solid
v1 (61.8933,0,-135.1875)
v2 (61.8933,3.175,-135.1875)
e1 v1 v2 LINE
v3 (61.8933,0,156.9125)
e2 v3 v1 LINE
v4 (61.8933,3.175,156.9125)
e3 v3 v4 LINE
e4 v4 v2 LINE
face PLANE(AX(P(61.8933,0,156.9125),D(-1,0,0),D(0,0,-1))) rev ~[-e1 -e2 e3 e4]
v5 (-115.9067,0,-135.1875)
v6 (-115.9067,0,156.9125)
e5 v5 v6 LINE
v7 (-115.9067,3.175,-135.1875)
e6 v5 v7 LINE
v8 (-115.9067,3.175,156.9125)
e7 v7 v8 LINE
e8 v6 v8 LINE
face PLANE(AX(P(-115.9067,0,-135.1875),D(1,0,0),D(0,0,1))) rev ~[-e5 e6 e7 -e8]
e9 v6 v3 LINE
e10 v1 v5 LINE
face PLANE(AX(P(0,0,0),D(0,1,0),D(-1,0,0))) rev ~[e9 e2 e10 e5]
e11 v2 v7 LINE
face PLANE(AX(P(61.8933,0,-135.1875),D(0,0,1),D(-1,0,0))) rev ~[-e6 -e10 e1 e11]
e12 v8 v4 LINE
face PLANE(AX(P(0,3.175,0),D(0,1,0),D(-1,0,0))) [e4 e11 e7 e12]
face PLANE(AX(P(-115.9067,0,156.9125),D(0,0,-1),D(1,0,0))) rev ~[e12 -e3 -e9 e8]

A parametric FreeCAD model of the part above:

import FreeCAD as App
import Part
import Sketcher
Q = App.Units.Quantity


def add_polygon(sketch, points):
    """Adds a closed chain of lines whose ends are joined by coincident constraints."""
    first, n = sketch.GeometryCount, len(points)
    for a, b in zip(points, points[1:] + points[:1]):
        sketch.addGeometry(Part.LineSegment(App.Vector(*a, 0), App.Vector(*b, 0)), False)
    for i in range(n):
        sketch.addConstraint(Sketcher.Constraint("Coincident", first + i, 2, first + (i + 1) % n, 1))

doc = App.newDocument("Part")
body = doc.addObject("PartDesign::Body", "Body")

sketch1 = body.newObject("Sketcher::SketchObject", "Sketch")
sketch1.AttachmentSupport = (doc.getObject("XZ_Plane"), [""])
sketch1.MapMode = "FlatFace"
add_polygon(sketch1, [(-116, -135), (-116, 157), (62, 157), (62, -135)])
sketch1.addConstraint(Sketcher.Constraint("Vertical", 0))
sketch1.addConstraint(Sketcher.Constraint("Horizontal", 1))
sketch1.addConstraint(Sketcher.Constraint("Vertical", 2))
sketch1.addConstraint(Sketcher.Constraint("Horizontal", 3))
sketch1.addConstraint(Sketcher.Constraint("DistanceX", 1, 1, 1, 2, Q("7 in")))
sketch1.addConstraint(Sketcher.Constraint("DistanceY", 0, 1, 0, 2, Q("11.5 in")))
sketch1.addConstraint(Sketcher.Constraint("DistanceX", 0, 2, -1, 1, Q("115.9067 mm")))
sketch1.addConstraint(Sketcher.Constraint("DistanceY", -1, 1, 0, 2, Q("156.9125 mm")))
pad1 = body.newObject("PartDesign::Pad", "Pad")
pad1.Profile = sketch1
pad1.Length = Q("0.125 in")
pad1.Reversed = True

doc.recompute()
